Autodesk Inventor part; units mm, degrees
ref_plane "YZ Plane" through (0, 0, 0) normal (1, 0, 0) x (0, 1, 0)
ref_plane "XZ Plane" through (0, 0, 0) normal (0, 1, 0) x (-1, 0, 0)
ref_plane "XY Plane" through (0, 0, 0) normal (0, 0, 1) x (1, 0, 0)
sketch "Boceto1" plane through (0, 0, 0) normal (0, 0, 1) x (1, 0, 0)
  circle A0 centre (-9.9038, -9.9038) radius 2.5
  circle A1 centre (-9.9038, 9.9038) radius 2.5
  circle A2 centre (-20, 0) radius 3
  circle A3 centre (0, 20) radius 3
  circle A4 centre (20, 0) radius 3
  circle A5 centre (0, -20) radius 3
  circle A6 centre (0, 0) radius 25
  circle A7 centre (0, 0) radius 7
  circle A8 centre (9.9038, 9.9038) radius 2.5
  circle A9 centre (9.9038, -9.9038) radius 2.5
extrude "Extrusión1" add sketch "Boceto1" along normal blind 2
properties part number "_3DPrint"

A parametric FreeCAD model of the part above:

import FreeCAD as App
import Part
import Sketcher

doc = App.newDocument("Part")
body = doc.addObject("PartDesign::Body", "Body")

# Sketch on XY plane
sketch1 = body.newObject("Sketcher::SketchObject", "Sketch")
sketch1.AttachmentSupport = (doc.getObject("XY_Plane"), [""])
sketch1.MapMode = "FlatFace"
sketch1.addGeometry(Part.Circle(App.Vector(0, 0, 0), App.Vector(0, 0, 1), 25), False)
sketch1.addGeometry(Part.Circle(App.Vector(-9.9038, -9.9038, 0), App.Vector(0, 0, 1), 2.5), False)
sketch1.addGeometry(Part.Circle(App.Vector(0, -20, 0), App.Vector(0, 0, 1), 3), False)
sketch1.addGeometry(Part.Circle(App.Vector(9.9038, -9.9038, 0), App.Vector(0, 0, 1), 2.5), False)
sketch1.addGeometry(Part.Circle(App.Vector(-20, 0, 0), App.Vector(0, 0, 1), 3), False)
sketch1.addGeometry(Part.Circle(App.Vector(-9.9038, 9.9038, 0), App.Vector(0, 0, 1), 2.5), False)
sketch1.addGeometry(Part.Circle(App.Vector(0, 0, 0), App.Vector(0, 0, 1), 7), False)
sketch1.addGeometry(Part.Circle(App.Vector(9.9038, 9.9038, 0), App.Vector(0, 0, 1), 2.5), False)
sketch1.addGeometry(Part.Circle(App.Vector(20, 0, 0), App.Vector(0, 0, 1), 3), False)
sketch1.addGeometry(Part.Circle(App.Vector(0, 20, 0), App.Vector(0, 0, 1), 3), False)
sketch1.addConstraint(Sketcher.Constraint("Coincident", 0, 3, -1, 1))
sketch1.addConstraint(Sketcher.Constraint("Coincident", 6, 3, -1, 1))
sketch1.addConstraint(Sketcher.Constraint("Equal", 1, 3))
sketch1.addConstraint(Sketcher.Constraint("Equal", 2, 4))
sketch1.addConstraint(Sketcher.Constraint("Equal", 3, 5))
sketch1.addConstraint(Sketcher.Constraint("Equal", 5, 7))
sketch1.addConstraint(Sketcher.Constraint("Equal", 4, 8))
sketch1.addConstraint(Sketcher.Constraint("Equal", 8, 9))
sketch1.addConstraint(Sketcher.Constraint("Symmetric", 3, 3, 5, 3, -1, 1))
sketch1.addConstraint(Sketcher.Constraint("Symmetric", 1, 3, 7, 3, -1, 1))
sketch1.addConstraint(Sketcher.Constraint("Symmetric", 4, 3, 8, 3, -1, 1))
sketch1.addConstraint(Sketcher.Constraint("Symmetric", 2, 3, 9, 3, -1, 1))
sketch1.addConstraint(Sketcher.Constraint("Symmetric", 1, 3, 3, 3, -2))
sketch1.addConstraint(Sketcher.Constraint("PointOnObject", 2, 3, -2))
sketch1.addConstraint(Sketcher.Constraint("PointOnObject", 4, 3, -1))
sketch1.addConstraint(Sketcher.Constraint("Diameter", 0, 50.0))
sketch1.addConstraint(Sketcher.Constraint("Diameter", 1, 5.0))
sketch1.addConstraint(Sketcher.Constraint("Diameter", 2, 6.0))
sketch1.addConstraint(Sketcher.Constraint("Diameter", 6, 14.0))
sketch1.addConstraint(Sketcher.Constraint("DistanceY", 2, 3, -1, 1, 20.0))
sketch1.addConstraint(Sketcher.Constraint("DistanceX", 4, 3, -1, 1, 20.0))
sketch1.addConstraint(Sketcher.Constraint("DistanceX", 1, 3, -1, 1, 9.9038))
sketch1.addConstraint(Sketcher.Constraint("DistanceY", 1, 3, -1, 1, 9.9038))
pad1 = body.newObject("PartDesign::Pad", "Pad")
pad1.Profile = sketch1
pad1.Length = 2

doc.recompute()
